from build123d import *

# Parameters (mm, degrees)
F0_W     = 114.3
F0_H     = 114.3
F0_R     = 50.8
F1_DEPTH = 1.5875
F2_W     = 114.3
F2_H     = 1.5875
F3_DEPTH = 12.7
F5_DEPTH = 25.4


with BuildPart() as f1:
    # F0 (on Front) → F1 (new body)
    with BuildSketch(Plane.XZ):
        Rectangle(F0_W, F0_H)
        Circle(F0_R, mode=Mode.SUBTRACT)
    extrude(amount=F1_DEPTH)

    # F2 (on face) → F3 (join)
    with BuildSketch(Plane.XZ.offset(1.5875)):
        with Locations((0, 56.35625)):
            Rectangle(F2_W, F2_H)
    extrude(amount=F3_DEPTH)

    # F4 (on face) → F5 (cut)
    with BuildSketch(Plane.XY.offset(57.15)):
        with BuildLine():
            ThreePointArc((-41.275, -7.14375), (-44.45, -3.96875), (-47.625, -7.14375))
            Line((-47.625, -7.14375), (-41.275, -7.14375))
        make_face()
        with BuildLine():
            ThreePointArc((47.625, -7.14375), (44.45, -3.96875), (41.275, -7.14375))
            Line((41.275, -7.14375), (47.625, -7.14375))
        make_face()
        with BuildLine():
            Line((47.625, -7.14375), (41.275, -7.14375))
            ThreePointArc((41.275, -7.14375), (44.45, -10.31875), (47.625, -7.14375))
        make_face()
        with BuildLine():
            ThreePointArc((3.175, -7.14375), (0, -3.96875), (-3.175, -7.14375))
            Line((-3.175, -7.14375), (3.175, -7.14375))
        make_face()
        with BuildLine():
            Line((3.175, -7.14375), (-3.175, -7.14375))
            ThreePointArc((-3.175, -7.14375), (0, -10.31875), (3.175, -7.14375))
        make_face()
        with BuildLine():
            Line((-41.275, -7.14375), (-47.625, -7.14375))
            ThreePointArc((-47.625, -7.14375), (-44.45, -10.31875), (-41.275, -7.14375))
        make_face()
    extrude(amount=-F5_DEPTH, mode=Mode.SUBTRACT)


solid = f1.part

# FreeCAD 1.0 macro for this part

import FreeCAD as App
import Part
import Sketcher
Q = App.Units.Quantity


def add_polygon(sketch, points):
    """Adds a closed chain of lines whose ends are joined by coincident constraints."""
    first, n = sketch.GeometryCount, len(points)
    for a, b in zip(points, points[1:] + points[:1]):
        sketch.addGeometry(Part.LineSegment(App.Vector(*a, 0), App.Vector(*b, 0)), False)
    for i in range(n):
        sketch.addConstraint(Sketcher.Constraint("Coincident", first + i, 2, first + (i + 1) % n, 1))

doc = App.newDocument("Part")
body = doc.addObject("PartDesign::Body", "Body")

# Sketch on XZ plane
sketch1 = doc.addObject("Sketcher::SketchObject", "Sketch")
body.addObject(sketch1)
sketch1.AttachmentSupport = (doc.XZ_Plane, [""])
sketch1.MapMode = "FlatFace"
add_polygon(sketch1, [(-57, 57), (-57, -57), (57, -57), (57, 57)])  # lines 0-3
sketch1.addGeometry(Part.Circle(App.Vector(0, 0, 0), App.Vector(0, 0, 1), 51), False)  # 4
sketch1.addConstraint(Sketcher.Constraint("Vertical", 0))
sketch1.addConstraint(Sketcher.Constraint("Horizontal", 1))
sketch1.addConstraint(Sketcher.Constraint("Vertical", 2))
sketch1.addConstraint(Sketcher.Constraint("Horizontal", 3))
sketch1.addConstraint(Sketcher.Constraint("Coincident", 4, 3, -1, 1))
sketch1.addConstraint(Sketcher.Constraint("Symmetric", 0, 2, 2, 2, -1, 1))
sketch1.addConstraint(Sketcher.Constraint("Equal", 3, 0))
sketch1.addConstraint(Sketcher.Constraint("Diameter", 4, Q("4 in")))
sketch1.addConstraint(Sketcher.Constraint("DistanceX", 1, 1, 1, 2, Q("4.5 in")))
pad1 = doc.addObject("PartDesign::Pad", "Pad")
body.addObject(pad1)
pad1.Profile = sketch1
pad1.Length = Q("0.0625 in")

# Sketch on XZ plane
sketch2 = doc.addObject("Sketcher::SketchObject", "Sketch001")
body.addObject(sketch2)
sketch2.AttachmentSupport = (doc.XZ_Plane, [""])
sketch2.MapMode = "FlatFace"
sketch2.AttachmentOffset = App.Placement(App.Vector(0, 0, 0.0625 * 25.4), App.Rotation())
add_polygon(sketch2, [(-57.1, 57.1), (-57.1, 55.6), (57.1, 55.6), (57.1, 57.1)])  # lines 0-3
sketch2.addConstraint(Sketcher.Constraint("Vertical", 0))
sketch2.addConstraint(Sketcher.Constraint("Horizontal", 1))
sketch2.addConstraint(Sketcher.Constraint("Vertical", 2))
sketch2.addConstraint(Sketcher.Constraint("Horizontal", 3))
sketch2.addConstraint(Sketcher.Constraint("DistanceX", 1, 1, 1, 2, Q("4.5 in")))
sketch2.addConstraint(Sketcher.Constraint("DistanceY", 0, 2, 0, 1, Q("0.0625 in")))
sketch2.addConstraint(Sketcher.Constraint("DistanceX", 0, 2, -1, 1, Q("2.25 in")))
sketch2.addConstraint(Sketcher.Constraint("DistanceY", -1, 1, 2, 2, Q("2.25 in")))
pad2 = doc.addObject("PartDesign::Pad", "Pad001")
body.addObject(pad2)
pad2.Profile = sketch2
pad2.Length = Q("0.5 in")

# Sketch on XY plane
sketch3 = doc.addObject("Sketcher::SketchObject", "Sketch002")
body.addObject(sketch3)
sketch3.AttachmentSupport = (doc.XY_Plane, [""])
sketch3.MapMode = "FlatFace"
sketch3.AttachmentOffset = App.Placement(App.Vector(0, 0, 2.25 * 25.4), App.Rotation())
sketch3.addGeometry(Part.Circle(App.Vector(-44.5, -7.1, 0), App.Vector(0, 0, 1), 3.2), False)
sketch3.addGeometry(Part.Circle(App.Vector(44.5, -7.1, 0), App.Vector(0, 0, 1), 3.2), False)
sketch3.addGeometry(Part.Circle(App.Vector(0, -7.1, 0), App.Vector(0, 0, 1), 3.2), False)
sketch3.addConstraint(Sketcher.Constraint("Equal", 0, 1))
sketch3.addConstraint(Sketcher.Constraint("Equal", 1, 2))
sketch3.addConstraint(Sketcher.Constraint("Symmetric", 0, 3, 1, 3, -2))
sketch3.addConstraint(Sketcher.Constraint("PointOnObject", 2, 3, -2))
sketch3.addConstraint(Sketcher.Constraint("Horizontal", 1, 3, 2, 3))
sketch3.addConstraint(Sketcher.Constraint("Diameter", 0, Q("0.25 in")))
sketch3.addConstraint(Sketcher.Constraint("DistanceX", 0, 3, 1, 3, Q("3.5 in")))
sketch3.addConstraint(Sketcher.Constraint("DistanceY", 0, 3, -1, 1, Q("0.28125 in")))
pocket1 = doc.addObject("PartDesign::Pocket", "Pocket")
body.addObject(pocket1)
pocket1.Profile = sketch3
pocket1.Length = Q("1 in")

doc.recompute()
